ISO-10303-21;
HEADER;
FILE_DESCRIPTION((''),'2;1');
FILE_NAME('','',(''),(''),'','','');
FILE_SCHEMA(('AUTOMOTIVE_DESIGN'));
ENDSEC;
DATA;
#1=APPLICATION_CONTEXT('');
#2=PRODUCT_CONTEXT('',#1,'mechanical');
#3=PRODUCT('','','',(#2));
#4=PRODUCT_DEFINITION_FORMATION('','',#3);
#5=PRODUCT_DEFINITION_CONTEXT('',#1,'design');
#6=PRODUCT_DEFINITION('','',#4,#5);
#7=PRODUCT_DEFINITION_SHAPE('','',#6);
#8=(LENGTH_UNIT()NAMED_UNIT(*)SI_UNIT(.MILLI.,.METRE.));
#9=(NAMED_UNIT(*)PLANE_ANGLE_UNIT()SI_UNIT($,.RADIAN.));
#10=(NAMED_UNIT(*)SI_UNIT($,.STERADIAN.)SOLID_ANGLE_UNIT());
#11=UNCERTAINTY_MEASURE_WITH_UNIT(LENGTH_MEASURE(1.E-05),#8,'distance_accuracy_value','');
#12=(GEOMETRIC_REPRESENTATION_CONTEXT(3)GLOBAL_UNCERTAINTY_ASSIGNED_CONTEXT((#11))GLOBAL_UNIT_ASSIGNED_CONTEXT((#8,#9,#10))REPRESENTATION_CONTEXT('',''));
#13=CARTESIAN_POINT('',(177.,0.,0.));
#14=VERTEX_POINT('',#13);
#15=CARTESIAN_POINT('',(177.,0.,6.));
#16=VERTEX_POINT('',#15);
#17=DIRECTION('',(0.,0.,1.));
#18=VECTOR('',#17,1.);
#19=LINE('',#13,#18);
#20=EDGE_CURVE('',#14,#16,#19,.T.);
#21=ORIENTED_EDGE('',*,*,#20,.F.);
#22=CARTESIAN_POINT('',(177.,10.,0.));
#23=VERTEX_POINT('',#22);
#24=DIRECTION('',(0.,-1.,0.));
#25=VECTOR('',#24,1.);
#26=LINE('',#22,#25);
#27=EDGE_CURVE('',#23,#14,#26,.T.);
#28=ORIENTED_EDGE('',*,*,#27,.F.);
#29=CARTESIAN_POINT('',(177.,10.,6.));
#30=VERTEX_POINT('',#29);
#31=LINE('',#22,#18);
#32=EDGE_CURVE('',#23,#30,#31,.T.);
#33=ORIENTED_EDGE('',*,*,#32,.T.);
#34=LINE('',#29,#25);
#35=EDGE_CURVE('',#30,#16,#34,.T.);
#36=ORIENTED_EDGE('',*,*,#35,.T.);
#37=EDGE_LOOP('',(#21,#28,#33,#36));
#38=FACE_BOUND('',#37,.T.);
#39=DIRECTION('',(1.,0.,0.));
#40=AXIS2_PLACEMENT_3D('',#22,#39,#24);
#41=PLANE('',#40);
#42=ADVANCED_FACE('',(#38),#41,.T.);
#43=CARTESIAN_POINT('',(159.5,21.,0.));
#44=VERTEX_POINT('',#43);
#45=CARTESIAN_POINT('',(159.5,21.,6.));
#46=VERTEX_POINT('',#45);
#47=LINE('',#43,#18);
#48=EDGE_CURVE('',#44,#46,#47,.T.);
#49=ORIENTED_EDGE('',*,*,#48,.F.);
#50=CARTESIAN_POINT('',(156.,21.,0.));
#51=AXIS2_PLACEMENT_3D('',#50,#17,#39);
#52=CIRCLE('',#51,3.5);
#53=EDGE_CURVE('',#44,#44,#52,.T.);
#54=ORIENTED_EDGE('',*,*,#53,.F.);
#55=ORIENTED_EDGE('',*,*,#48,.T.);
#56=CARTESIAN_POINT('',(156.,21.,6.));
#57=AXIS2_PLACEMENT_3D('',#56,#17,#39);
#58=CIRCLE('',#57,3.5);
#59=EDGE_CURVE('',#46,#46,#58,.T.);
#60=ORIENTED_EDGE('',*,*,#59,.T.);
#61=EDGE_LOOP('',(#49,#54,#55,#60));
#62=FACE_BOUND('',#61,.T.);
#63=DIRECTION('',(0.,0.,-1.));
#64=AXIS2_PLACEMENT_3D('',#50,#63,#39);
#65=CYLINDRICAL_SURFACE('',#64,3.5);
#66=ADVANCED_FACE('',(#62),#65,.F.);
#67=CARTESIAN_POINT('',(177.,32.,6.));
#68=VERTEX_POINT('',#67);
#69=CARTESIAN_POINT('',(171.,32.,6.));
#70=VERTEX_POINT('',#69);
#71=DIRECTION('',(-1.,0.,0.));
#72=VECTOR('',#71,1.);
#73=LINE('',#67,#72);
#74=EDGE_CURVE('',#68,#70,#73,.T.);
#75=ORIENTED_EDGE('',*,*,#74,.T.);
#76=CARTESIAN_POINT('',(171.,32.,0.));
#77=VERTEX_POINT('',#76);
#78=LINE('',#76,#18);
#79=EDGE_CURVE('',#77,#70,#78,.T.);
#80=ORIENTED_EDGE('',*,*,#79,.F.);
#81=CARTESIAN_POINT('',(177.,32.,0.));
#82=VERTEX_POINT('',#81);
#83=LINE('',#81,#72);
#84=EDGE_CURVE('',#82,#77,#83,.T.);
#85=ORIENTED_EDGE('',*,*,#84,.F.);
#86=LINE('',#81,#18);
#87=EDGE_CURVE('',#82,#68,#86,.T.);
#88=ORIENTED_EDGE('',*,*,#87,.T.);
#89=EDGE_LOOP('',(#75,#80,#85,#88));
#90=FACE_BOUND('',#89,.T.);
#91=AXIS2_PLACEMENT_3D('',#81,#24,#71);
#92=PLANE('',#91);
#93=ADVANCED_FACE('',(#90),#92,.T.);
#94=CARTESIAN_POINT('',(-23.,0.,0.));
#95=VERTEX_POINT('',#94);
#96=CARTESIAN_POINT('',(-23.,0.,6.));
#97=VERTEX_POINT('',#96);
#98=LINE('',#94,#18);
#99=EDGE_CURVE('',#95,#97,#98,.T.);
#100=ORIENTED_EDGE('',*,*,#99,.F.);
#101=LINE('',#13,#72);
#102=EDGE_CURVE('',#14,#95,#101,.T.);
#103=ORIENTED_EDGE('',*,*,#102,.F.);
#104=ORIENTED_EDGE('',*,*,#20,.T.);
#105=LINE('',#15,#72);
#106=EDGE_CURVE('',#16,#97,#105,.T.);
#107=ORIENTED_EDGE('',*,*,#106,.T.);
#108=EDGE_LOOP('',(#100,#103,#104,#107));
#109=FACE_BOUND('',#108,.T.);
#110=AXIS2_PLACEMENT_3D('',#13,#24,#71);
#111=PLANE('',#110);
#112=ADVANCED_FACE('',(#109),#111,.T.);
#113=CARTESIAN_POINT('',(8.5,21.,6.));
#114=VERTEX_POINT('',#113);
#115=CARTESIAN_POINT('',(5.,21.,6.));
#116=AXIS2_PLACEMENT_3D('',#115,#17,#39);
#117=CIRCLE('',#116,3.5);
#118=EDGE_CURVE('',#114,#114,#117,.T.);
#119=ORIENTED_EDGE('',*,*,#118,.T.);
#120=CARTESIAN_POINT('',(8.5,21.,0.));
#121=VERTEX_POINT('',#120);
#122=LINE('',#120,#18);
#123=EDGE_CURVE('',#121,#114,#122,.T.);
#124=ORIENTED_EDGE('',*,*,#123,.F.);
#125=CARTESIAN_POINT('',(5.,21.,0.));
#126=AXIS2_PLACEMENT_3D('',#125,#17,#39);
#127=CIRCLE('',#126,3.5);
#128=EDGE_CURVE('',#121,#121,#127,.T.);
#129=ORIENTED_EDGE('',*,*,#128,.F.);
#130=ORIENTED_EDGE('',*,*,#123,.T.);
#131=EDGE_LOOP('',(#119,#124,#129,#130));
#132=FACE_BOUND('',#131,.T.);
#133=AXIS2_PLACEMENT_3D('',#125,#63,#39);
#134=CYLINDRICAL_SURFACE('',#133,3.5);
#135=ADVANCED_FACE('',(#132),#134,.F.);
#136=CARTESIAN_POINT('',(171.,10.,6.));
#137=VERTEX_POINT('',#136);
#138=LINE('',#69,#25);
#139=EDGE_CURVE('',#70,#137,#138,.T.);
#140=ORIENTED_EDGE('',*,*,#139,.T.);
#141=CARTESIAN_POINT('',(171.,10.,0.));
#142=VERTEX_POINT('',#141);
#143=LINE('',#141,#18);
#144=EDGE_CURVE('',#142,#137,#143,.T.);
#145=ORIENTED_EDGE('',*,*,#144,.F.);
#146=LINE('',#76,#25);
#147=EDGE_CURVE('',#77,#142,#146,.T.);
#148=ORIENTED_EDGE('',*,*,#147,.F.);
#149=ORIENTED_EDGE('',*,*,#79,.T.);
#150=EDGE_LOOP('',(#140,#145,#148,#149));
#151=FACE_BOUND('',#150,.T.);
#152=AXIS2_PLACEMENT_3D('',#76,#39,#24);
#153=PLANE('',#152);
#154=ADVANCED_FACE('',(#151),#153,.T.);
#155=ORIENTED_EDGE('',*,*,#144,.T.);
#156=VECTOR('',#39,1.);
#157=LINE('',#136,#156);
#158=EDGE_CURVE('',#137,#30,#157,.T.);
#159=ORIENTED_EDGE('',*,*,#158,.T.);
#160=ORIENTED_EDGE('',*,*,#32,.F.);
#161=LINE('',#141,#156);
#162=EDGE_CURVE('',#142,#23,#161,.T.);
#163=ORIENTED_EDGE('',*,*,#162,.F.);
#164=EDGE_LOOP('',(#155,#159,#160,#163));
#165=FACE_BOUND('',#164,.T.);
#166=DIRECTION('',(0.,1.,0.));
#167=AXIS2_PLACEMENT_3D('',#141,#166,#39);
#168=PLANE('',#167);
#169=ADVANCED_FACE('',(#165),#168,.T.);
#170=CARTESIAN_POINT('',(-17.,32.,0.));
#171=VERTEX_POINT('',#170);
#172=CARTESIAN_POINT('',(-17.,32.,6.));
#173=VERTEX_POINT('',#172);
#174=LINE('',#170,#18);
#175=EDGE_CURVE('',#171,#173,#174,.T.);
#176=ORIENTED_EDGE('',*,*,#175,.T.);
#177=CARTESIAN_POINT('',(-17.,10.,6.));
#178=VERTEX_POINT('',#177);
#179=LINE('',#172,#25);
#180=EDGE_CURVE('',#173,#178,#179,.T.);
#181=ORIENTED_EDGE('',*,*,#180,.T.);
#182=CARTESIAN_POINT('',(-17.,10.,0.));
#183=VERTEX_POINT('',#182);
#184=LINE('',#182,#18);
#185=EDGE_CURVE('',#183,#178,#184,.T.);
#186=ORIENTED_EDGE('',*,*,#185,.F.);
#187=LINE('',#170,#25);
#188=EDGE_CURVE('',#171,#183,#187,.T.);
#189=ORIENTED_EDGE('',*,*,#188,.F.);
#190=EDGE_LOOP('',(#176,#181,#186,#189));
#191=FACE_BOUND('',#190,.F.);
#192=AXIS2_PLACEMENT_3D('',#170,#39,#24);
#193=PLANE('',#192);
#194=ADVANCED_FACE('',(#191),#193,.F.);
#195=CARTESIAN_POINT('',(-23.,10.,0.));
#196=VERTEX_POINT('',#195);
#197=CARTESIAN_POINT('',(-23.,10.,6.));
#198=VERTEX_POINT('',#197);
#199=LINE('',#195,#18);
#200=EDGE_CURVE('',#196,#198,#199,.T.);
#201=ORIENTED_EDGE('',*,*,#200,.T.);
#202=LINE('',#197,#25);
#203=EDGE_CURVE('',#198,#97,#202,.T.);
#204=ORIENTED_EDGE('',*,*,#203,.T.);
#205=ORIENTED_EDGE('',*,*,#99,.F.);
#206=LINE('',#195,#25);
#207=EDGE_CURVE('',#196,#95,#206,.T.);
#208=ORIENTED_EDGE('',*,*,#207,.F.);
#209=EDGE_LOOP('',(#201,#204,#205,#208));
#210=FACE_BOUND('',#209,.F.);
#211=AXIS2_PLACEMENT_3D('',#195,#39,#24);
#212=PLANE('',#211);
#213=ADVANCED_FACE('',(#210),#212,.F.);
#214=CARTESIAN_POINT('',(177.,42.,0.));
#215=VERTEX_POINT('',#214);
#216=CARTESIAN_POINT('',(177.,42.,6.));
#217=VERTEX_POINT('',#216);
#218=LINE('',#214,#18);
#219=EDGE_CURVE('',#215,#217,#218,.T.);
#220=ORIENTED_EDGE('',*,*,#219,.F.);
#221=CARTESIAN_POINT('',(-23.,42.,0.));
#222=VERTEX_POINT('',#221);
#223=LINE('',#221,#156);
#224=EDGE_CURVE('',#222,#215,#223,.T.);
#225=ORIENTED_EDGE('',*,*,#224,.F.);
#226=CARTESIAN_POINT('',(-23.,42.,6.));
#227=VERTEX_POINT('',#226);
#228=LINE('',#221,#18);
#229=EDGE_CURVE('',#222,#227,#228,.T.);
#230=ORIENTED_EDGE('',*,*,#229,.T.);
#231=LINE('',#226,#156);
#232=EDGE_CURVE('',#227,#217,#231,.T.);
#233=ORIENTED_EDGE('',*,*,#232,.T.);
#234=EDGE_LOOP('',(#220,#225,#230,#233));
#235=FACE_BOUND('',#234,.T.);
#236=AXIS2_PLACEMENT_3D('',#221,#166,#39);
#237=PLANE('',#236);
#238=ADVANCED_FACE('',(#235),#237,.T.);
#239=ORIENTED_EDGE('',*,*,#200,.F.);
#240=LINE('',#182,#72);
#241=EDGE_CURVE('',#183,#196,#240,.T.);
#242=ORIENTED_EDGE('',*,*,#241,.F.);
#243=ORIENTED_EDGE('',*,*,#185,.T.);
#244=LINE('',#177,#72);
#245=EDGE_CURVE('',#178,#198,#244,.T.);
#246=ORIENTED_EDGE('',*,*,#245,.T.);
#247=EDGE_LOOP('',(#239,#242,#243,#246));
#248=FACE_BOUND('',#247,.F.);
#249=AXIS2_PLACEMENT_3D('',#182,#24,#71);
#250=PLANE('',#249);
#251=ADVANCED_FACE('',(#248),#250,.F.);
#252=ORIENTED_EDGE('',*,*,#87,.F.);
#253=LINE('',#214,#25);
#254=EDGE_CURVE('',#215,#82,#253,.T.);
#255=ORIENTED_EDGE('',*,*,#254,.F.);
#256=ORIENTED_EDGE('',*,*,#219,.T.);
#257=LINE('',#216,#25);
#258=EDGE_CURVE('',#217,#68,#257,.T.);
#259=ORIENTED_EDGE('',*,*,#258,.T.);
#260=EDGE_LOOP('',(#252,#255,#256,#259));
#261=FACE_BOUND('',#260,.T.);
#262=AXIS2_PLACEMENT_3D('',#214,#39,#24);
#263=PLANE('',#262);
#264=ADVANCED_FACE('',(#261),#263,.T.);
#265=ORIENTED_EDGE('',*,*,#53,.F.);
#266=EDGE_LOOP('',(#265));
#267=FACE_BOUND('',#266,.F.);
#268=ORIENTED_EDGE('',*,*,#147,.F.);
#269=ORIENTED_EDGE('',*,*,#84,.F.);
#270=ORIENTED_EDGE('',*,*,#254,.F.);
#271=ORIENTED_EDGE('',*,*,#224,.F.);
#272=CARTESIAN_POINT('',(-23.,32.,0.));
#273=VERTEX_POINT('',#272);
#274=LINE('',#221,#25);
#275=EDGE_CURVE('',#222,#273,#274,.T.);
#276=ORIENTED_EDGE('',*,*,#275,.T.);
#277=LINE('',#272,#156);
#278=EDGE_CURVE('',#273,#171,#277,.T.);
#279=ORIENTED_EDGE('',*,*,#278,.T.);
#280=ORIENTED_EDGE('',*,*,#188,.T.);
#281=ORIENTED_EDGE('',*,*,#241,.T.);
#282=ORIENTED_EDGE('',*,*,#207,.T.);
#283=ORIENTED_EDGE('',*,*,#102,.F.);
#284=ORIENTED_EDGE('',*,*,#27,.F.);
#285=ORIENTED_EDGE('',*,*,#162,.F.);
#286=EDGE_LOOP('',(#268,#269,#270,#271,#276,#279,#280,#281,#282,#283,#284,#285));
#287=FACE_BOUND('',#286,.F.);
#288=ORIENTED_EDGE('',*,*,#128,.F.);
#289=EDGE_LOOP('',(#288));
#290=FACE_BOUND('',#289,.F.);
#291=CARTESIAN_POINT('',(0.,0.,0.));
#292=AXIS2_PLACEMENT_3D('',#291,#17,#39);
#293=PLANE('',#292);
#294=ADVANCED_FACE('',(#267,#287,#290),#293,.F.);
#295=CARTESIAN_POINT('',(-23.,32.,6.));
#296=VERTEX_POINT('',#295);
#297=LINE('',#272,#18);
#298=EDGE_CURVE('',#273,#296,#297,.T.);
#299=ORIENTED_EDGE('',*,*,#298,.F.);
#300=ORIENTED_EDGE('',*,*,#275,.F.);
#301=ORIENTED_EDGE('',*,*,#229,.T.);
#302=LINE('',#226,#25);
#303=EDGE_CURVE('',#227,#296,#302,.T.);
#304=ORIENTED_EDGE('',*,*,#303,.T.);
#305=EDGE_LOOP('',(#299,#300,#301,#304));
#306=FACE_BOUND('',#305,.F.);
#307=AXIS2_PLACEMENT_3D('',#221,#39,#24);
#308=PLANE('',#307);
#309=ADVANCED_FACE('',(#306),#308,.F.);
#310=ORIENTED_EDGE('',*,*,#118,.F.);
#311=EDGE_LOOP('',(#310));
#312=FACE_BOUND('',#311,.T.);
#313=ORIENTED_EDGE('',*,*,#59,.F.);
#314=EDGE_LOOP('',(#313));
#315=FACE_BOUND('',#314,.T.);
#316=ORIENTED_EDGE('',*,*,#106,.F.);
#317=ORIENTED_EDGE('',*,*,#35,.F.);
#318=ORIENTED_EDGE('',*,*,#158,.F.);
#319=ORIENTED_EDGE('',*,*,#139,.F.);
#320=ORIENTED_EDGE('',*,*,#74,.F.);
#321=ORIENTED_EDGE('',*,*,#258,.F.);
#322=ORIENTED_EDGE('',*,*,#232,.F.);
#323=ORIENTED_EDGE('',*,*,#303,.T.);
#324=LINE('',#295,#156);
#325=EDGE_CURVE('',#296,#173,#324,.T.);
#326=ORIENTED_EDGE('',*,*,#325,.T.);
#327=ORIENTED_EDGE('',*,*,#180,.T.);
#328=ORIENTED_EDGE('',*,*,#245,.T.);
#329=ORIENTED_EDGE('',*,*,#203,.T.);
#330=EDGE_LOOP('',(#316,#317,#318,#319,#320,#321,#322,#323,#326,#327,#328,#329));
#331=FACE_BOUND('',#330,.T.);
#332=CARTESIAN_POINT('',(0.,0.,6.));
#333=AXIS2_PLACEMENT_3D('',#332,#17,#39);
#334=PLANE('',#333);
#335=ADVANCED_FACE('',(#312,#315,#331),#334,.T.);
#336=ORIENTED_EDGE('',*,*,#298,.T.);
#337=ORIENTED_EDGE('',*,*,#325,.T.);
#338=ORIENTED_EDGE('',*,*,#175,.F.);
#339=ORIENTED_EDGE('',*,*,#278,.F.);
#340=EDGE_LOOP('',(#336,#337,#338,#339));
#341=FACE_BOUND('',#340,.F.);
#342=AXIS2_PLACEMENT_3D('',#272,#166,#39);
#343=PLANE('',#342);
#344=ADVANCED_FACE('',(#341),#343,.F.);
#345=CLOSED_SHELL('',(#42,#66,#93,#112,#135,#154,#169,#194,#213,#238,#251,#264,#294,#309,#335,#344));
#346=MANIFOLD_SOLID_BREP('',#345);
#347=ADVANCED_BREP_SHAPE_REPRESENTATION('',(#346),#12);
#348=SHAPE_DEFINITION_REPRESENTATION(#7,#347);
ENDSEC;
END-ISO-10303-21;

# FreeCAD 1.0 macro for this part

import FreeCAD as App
import Part
import Sketcher
Q = App.Units.Quantity


def add_polygon(sketch, points):
    """Adds a closed chain of lines whose ends are joined by coincident constraints."""
    first, n = sketch.GeometryCount, len(points)
    for a, b in zip(points, points[1:] + points[:1]):
        sketch.addGeometry(Part.LineSegment(App.Vector(*a, 0), App.Vector(*b, 0)), False)
    for i in range(n):
        sketch.addConstraint(Sketcher.Constraint("Coincident", first + i, 2, first + (i + 1) % n, 1))

doc = App.newDocument("Part")
body = doc.addObject("PartDesign::Body", "Body")

sketch1 = doc.addObject("Sketcher::SketchObject", "Sketch")
body.addObject(sketch1)
sketch1.AttachmentSupport = (doc.XY_Plane, [""])
sketch1.MapMode = "FlatFace"
add_polygon(sketch1, [(177, 42), (-23, 42), (-23, 32), (-17, 32), (-17, 10), (-23, 10), (-23, 0), (177, 0), (177, 10), (171, 10), (171, 32), (177, 32)])
sketch1.addGeometry(Part.Circle(App.Vector(5, 21, 0), App.Vector(0, 0, 1), 3.5), False)
sketch1.addGeometry(Part.Circle(App.Vector(156, 21, 0), App.Vector(0, 0, 1), 3.5), False)
sketch1.addConstraint(Sketcher.Constraint("Horizontal", 0))
sketch1.addConstraint(Sketcher.Constraint("Vertical", 1))
sketch1.addConstraint(Sketcher.Constraint("Horizontal", 2))
sketch1.addConstraint(Sketcher.Constraint("Vertical", 3))
sketch1.addConstraint(Sketcher.Constraint("Horizontal", 4))
sketch1.addConstraint(Sketcher.Constraint("Vertical", 5))
sketch1.addConstraint(Sketcher.Constraint("Horizontal", 6))
sketch1.addConstraint(Sketcher.Constraint("Vertical", 7))
sketch1.addConstraint(Sketcher.Constraint("Horizontal", 8))
sketch1.addConstraint(Sketcher.Constraint("Vertical", 9))
sketch1.addConstraint(Sketcher.Constraint("Horizontal", 10))
sketch1.addConstraint(Sketcher.Constraint("Vertical", 11))
sketch1.addConstraint(Sketcher.Constraint("Equal", 12, 13))
sketch1.addConstraint(Sketcher.Constraint("PointOnObject", 5, 2, -1))
sketch1.addConstraint(Sketcher.Constraint("Horizontal", 12, 3, 13, 3))
sketch1.addConstraint(Sketcher.Constraint("Horizontal", 4, 2, 7, 2))
sketch1.addConstraint(Sketcher.Constraint("Horizontal", 2, 2, 9, 2))
sketch1.addConstraint(Sketcher.Constraint("Vertical", 1, 2, 4, 2))
sketch1.addConstraint(Sketcher.Constraint("Vertical", 7, 2, 10, 2))
sketch1.addConstraint(Sketcher.Constraint("Equal", 4, 8))
sketch1.addConstraint(Sketcher.Constraint("Equal", 1, 5))
sketch1.addConstraint(Sketcher.Constraint("Diameter", 12, Q("7 mm")))
sketch1.addConstraint(Sketcher.Constraint("DistanceX", 0, 2, 0, 1, Q("200 mm")))
sketch1.addConstraint(Sketcher.Constraint("DistanceX", 2, 1, 2, 2, Q("6 mm")))
sketch1.addConstraint(Sketcher.Constraint("DistanceY", 1, 2, 1, 1, Q("10 mm")))
sketch1.addConstraint(Sketcher.Constraint("DistanceY", -1, 1, 12, 3, Q("21 mm")))
sketch1.addConstraint(Sketcher.Constraint("DistanceX", 0, 2, -1, 1, Q("23 mm")))
sketch1.addConstraint(Sketcher.Constraint("DistanceY", -1, 1, 0, 2, Q("42 mm")))
sketch1.addConstraint(Sketcher.Constraint("DistanceX", 0, 2, 12, 3, Q("28 mm")))
sketch1.addConstraint(Sketcher.Constraint("DistanceX", 13, 3, 6, 2, Q("21 mm")))
pad1 = doc.addObject("PartDesign::Pad", "Pad")
body.addObject(pad1)
pad1.Profile = sketch1
pad1.Length = 6

doc.recompute()
